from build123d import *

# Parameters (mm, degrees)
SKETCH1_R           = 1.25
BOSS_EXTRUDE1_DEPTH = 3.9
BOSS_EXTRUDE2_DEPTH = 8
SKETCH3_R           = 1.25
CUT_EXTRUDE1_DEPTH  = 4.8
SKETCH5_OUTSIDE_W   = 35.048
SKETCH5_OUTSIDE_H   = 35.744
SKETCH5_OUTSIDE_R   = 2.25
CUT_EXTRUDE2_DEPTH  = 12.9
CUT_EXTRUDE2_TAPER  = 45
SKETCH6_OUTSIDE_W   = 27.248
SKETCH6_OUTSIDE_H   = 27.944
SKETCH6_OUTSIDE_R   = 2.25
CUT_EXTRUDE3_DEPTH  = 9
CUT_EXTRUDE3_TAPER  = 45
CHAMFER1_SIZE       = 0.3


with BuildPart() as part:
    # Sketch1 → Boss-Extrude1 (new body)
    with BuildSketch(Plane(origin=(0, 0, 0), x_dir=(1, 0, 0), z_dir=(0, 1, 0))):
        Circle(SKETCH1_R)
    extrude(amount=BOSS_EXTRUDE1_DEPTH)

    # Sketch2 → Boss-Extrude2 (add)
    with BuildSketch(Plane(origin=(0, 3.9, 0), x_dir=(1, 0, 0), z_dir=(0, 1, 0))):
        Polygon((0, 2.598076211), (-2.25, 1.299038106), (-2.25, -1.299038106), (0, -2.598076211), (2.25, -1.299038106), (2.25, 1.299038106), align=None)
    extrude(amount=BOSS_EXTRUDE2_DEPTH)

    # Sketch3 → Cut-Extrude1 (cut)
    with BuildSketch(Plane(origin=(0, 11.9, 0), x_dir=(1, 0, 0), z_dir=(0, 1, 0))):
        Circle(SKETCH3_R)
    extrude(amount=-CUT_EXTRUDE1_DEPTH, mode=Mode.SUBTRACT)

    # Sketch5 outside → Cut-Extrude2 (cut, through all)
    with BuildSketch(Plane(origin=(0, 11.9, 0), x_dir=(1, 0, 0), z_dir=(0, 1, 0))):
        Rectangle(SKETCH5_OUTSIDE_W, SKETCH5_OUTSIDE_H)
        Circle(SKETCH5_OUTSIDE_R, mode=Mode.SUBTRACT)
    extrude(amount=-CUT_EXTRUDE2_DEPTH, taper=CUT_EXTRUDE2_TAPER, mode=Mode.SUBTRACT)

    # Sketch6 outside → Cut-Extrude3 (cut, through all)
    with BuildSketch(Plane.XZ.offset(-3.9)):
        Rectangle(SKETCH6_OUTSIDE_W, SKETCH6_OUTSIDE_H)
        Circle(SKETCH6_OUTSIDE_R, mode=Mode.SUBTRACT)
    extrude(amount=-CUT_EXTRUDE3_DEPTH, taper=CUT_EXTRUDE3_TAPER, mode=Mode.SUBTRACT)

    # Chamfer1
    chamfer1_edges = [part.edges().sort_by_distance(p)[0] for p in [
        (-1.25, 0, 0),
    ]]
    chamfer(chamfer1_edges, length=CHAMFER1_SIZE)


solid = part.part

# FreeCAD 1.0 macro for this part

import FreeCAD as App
import Part
import Sketcher
Q = App.Units.Quantity


def edges_at(feature, points):
    """Names of the edges that pass closest to the given points."""
    edges = feature.Shape.Edges
    near = lambda p: min(range(len(edges)), key=lambda i: edges[i].distToShape(Part.Vertex(*p))[0])
    return sorted({f"Edge{near(p) + 1}" for p in points})


def add_polygon(sketch, points):
    """Adds a closed chain of lines whose ends are joined by coincident constraints."""
    first, n = sketch.GeometryCount, len(points)
    for a, b in zip(points, points[1:] + points[:1]):
        sketch.addGeometry(Part.LineSegment(App.Vector(*a, 0), App.Vector(*b, 0)), False)
    for i in range(n):
        sketch.addConstraint(Sketcher.Constraint("Coincident", first + i, 2, first + (i + 1) % n, 1))

doc = App.newDocument("Part")
body = doc.addObject("PartDesign::Body", "Body")

# Sketch on XZ plane
sketch1 = body.newObject("Sketcher::SketchObject", "Sketch")
sketch1.AttachmentSupport = (doc.getObject("XZ_Plane"), [""])
sketch1.MapMode = "FlatFace"
sketch1.addGeometry(Part.Circle(App.Vector(0, 0, 0), App.Vector(0, 0, 1), 1.2), False)
sketch1.addConstraint([
    Sketcher.Constraint("Coincident", 0, 3, -1, 1),
    Sketcher.Constraint("Diameter", 0, 2.5),
])
pad1 = body.newObject("PartDesign::Pad", "Pad")
pad1.Profile = sketch1
pad1.Length = 3.9
pad1.Reversed = True

# Sketch on XZ plane
sketch2 = body.newObject("Sketcher::SketchObject", "Sketch001")
sketch2.AttachmentSupport = (doc.getObject("XZ_Plane"), [""])
sketch2.MapMode = "FlatFace"
sketch2.AttachmentOffset = App.Placement(App.Vector(0, 0, -3.9), App.Rotation())
add_polygon(sketch2, [(0, -2.6), (-2.2, -1.3), (-2.2, 1.3), (0, 2.6), (2.2, 1.3), (2.2, -1.3)])  # lines 0-5
sketch2.addConstraint([
    Sketcher.Constraint("Vertical", 1),
    Sketcher.Constraint("Vertical", 4),
    Sketcher.Constraint("Symmetric", 0, 2, 3, 2, -1, 1),
    Sketcher.Constraint("Symmetric", 2, 2, 5, 2, -1, 1),
    Sketcher.Constraint("PointOnObject", 2, 2, -2),
    Sketcher.Constraint("Parallel", 2, 5),
    Sketcher.Constraint("Horizontal", 1, 2, 3, 2),
    Sketcher.Constraint("Angle", 0, Q("150 deg")),
    Sketcher.Constraint("DistanceX", 1, 2, 3, 2, 4.5),
    Sketcher.Constraint("DistanceY", 1, 1, 1, 2, 2.598076),
])
pad2 = body.newObject("PartDesign::Pad", "Pad001")
pad2.Profile = sketch2
pad2.Length = 8
pad2.Reversed = True

# Sketch on XZ plane
sketch3 = body.newObject("Sketcher::SketchObject", "Sketch002")
sketch3.AttachmentSupport = (doc.getObject("XZ_Plane"), [""])
sketch3.MapMode = "FlatFace"
sketch3.AttachmentOffset = App.Placement(App.Vector(0, 0, -11.9), App.Rotation())
sketch3.addGeometry(Part.Circle(App.Vector(0, 0, 0), App.Vector(0, 0, 1), 1.2), False)
sketch3.addConstraint([
    Sketcher.Constraint("Coincident", 0, 3, -1, 1),
    Sketcher.Constraint("Diameter", 0, 2.5),
])
pocket1 = body.newObject("PartDesign::Pocket", "Pocket")
pocket1.Profile = sketch3
pocket1.Length = 4.8
pocket1.Reversed = True

# Sketch on XZ plane
sketch4 = body.newObject("Sketcher::SketchObject", "Sketch003")
sketch4.AttachmentSupport = (doc.getObject("XZ_Plane"), [""])
sketch4.MapMode = "FlatFace"
sketch4.AttachmentOffset = App.Placement(App.Vector(0, 0, -11.9), App.Rotation())
add_polygon(sketch4, [(-17.5, -17.9), (-17.5, 17.9), (17.5, 17.9), (17.5, -17.9)])  # lines 0-3
sketch4.addGeometry(Part.Circle(App.Vector(0, 0, 0), App.Vector(0, 0, 1), 2.2), False)  # 4
sketch4.addConstraint([
    Sketcher.Constraint("Vertical", 0),
    Sketcher.Constraint("Horizontal", 1),
    Sketcher.Constraint("Vertical", 2),
    Sketcher.Constraint("Horizontal", 3),
    Sketcher.Constraint("Coincident", 4, 3, -1, 1),
    Sketcher.Constraint("Symmetric", 0, 2, 2, 2, -1, 1),
    Sketcher.Constraint("Diameter", 4, 4.5),
    Sketcher.Constraint("DistanceX", 1, 1, 1, 2, 35.048),
    Sketcher.Constraint("DistanceY", 0, 1, 0, 2, 35.744),
])
pocket2 = body.newObject("PartDesign::Pocket", "Pocket001")
pocket2.Profile = sketch4
pocket2.Length = 12.9
pocket2.Reversed = True
pocket2.TaperAngle = 45

# Sketch on XZ plane
sketch5 = body.newObject("Sketcher::SketchObject", "Sketch004")
sketch5.AttachmentSupport = (doc.getObject("XZ_Plane"), [""])
sketch5.MapMode = "FlatFace"
sketch5.AttachmentOffset = App.Placement(App.Vector(0, 0, -3.9), App.Rotation())
add_polygon(sketch5, [(-13.6, 14), (-13.6, -14), (13.6, -14), (13.6, 14)])  # lines 0-3
sketch5.addGeometry(Part.Circle(App.Vector(0, 0, 0), App.Vector(0, 0, 1), 2.2), False)  # 4
sketch5.addConstraint([
    Sketcher.Constraint("Vertical", 0),
    Sketcher.Constraint("Horizontal", 1),
    Sketcher.Constraint("Vertical", 2),
    Sketcher.Constraint("Horizontal", 3),
    Sketcher.Constraint("Coincident", 4, 3, -1, 1),
    Sketcher.Constraint("Symmetric", 0, 2, 2, 2, -1, 1),
    Sketcher.Constraint("Diameter", 4, 4.5),
    Sketcher.Constraint("DistanceX", 1, 1, 1, 2, 27.248),
    Sketcher.Constraint("DistanceY", 0, 2, 0, 1, 27.944),
])
pocket3 = body.newObject("PartDesign::Pocket", "Pocket002")
pocket3.Profile = sketch5
pocket3.Length = 9
pocket3.TaperAngle = 45
doc.recompute()

chamfer = body.newObject("PartDesign::Chamfer", "Chamfer")
chamfer.Base = (pocket3, edges_at(pocket3, [(-1.25, 0, 0)]))
chamfer.Size = 0.3

doc.recompute()
